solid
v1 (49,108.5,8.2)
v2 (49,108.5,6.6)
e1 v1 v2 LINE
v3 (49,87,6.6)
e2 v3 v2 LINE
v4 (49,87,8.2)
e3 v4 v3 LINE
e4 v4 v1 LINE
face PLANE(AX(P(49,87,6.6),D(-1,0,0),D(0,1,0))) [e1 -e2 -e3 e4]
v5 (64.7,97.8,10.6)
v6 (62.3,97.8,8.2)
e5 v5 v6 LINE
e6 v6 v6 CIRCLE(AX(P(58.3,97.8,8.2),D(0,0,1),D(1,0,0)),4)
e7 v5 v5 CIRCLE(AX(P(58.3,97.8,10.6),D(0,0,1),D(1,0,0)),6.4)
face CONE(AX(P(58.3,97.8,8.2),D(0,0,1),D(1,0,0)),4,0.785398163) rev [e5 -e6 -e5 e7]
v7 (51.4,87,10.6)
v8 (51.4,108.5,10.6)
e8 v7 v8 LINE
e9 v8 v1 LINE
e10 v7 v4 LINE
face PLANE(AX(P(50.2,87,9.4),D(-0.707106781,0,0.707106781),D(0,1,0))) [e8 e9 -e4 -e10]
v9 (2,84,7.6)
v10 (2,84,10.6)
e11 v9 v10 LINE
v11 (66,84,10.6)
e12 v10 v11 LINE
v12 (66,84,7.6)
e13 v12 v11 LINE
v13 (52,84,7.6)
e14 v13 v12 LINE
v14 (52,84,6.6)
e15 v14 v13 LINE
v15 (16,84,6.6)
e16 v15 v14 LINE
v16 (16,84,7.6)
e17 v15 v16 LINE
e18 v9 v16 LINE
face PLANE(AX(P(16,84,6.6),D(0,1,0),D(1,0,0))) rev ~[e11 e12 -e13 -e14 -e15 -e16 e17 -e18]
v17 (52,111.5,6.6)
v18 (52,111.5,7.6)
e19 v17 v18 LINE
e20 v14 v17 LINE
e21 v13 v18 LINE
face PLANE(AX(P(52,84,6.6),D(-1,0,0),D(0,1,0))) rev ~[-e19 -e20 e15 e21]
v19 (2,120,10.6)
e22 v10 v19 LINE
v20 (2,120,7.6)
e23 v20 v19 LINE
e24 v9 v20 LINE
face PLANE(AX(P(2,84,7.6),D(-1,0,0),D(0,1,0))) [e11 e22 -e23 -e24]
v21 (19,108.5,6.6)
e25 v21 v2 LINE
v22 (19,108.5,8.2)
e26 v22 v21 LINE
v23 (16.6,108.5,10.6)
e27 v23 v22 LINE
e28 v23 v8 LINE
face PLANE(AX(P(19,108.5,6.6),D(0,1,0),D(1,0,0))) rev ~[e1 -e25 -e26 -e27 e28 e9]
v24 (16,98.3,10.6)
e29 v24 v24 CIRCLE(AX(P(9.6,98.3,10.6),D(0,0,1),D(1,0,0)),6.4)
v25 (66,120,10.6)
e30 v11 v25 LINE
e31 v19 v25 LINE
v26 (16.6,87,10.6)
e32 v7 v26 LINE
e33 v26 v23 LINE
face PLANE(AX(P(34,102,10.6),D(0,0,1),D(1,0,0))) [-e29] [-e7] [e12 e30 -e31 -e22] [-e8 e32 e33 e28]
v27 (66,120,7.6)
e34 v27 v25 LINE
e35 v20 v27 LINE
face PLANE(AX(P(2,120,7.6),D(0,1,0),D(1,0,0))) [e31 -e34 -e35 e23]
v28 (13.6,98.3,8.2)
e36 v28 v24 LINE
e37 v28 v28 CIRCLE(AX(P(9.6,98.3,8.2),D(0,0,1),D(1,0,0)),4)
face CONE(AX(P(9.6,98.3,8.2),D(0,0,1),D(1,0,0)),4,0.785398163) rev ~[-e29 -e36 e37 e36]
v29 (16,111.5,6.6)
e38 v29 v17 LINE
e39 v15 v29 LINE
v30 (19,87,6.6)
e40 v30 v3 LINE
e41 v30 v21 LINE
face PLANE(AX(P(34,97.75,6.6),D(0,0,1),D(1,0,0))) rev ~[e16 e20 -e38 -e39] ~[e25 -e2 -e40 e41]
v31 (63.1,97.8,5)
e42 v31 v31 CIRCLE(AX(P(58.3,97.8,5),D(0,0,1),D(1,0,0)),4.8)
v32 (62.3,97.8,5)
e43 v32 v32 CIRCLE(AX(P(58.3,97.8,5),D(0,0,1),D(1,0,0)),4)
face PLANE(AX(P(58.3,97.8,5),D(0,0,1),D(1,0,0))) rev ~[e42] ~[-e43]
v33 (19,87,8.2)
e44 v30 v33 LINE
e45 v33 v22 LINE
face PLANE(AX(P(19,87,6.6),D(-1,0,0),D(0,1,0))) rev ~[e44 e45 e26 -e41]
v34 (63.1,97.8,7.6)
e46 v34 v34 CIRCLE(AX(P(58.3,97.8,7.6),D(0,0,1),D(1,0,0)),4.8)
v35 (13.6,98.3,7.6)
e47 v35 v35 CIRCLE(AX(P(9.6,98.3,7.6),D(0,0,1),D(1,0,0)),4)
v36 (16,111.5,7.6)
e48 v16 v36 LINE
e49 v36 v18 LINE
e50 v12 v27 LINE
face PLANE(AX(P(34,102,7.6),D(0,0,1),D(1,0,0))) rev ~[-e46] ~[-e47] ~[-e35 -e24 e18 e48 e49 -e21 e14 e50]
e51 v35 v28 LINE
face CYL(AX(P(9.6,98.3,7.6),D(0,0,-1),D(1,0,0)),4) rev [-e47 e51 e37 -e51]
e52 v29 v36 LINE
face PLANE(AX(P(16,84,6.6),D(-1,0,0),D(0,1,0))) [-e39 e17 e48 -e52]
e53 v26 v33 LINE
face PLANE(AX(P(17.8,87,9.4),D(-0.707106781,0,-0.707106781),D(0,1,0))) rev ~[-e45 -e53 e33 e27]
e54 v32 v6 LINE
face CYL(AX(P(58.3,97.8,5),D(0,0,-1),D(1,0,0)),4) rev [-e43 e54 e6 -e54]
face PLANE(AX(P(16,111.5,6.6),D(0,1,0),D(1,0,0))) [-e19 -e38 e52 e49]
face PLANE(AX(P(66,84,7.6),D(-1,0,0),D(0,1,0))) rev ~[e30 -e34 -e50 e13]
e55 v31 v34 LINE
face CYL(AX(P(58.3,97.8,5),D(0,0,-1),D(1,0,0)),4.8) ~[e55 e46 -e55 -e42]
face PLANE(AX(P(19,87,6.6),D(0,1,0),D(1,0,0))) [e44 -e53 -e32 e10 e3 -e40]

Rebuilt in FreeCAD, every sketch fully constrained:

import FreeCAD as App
import Part
import Sketcher
from FreeCAD import Vector
Q = App.Units.Quantity


def edges_at(feature, points):
    """Names of the edges that pass closest to the given points."""
    edges = feature.Shape.Edges
    near = lambda p: min(range(len(edges)), key=lambda i: edges[i].distToShape(Part.Vertex(*p))[0])
    return sorted({f"Edge{near(p) + 1}" for p in points})


def add_polygon(sketch, points):
    """Adds a closed chain of lines whose ends are joined by coincident constraints."""
    first, n = sketch.GeometryCount, len(points)
    for a, b in zip(points, points[1:] + points[:1]):
        sketch.addGeometry(Part.LineSegment(App.Vector(*a, 0), App.Vector(*b, 0)), False)
    for i in range(n):
        sketch.addConstraint(Sketcher.Constraint("Coincident", first + i, 2, first + (i + 1) % n, 1))

doc = App.newDocument("Part")
body = doc.addObject("PartDesign::Body", "Body")

sketch1 = doc.addObject("Sketcher::SketchObject", "Sketch")
body.addObject(sketch1)
sketch1.AttachmentSupport = (doc.XY_Plane, [""])
sketch1.MapMode = "FlatFace"
add_polygon(sketch1, [(16, 111.5), (16, 84), (52, 84), (52, 111.5)])
add_polygon(sketch1, [(49, 87), (19, 87), (19, 108.5), (49, 108.5)])
sketch1.addConstraint(Sketcher.Constraint("Vertical", 0))
sketch1.addConstraint(Sketcher.Constraint("Horizontal", 1))
sketch1.addConstraint(Sketcher.Constraint("Vertical", 2))
sketch1.addConstraint(Sketcher.Constraint("Horizontal", 3))
sketch1.addConstraint(Sketcher.Constraint("Horizontal", 4))
sketch1.addConstraint(Sketcher.Constraint("Vertical", 5))
sketch1.addConstraint(Sketcher.Constraint("Horizontal", 6))
sketch1.addConstraint(Sketcher.Constraint("Vertical", 7))
sketch1.addConstraint(Sketcher.Constraint("DistanceX", 1, 1, 1, 2, Q("36 mm")))
sketch1.addConstraint(Sketcher.Constraint("DistanceX", 4, 2, 4, 1, Q("30 mm")))
sketch1.addConstraint(Sketcher.Constraint("DistanceY", 0, 2, 0, 1, Q("27.5 mm")))
sketch1.addConstraint(Sketcher.Constraint("DistanceY", 5, 1, 5, 2, Q("21.5 mm")))
sketch1.addConstraint(Sketcher.Constraint("DistanceX", -1, 1, 0, 2, Q("16 mm")))
sketch1.addConstraint(Sketcher.Constraint("DistanceY", -1, 1, 0, 2, Q("84 mm")))
sketch1.addConstraint(Sketcher.Constraint("DistanceX", -1, 1, 4, 2, Q("19 mm")))
sketch1.addConstraint(Sketcher.Constraint("DistanceY", -1, 1, 4, 2, Q("87 mm")))
pad1 = doc.addObject("PartDesign::Pad", "Pad")
body.addObject(pad1)
pad1.Profile = sketch1
pad1.Length = 1
body2 = doc.addObject("PartDesign::Body", "Body001")
doc.recompute()

body.Placement = App.Placement(Vector(0, 0, 6.6), App.Rotation(Vector(0, 0, 1), 0))
boolean = doc.addObject("PartDesign::Boolean", "Boolean")
body2.addObject(boolean)
boolean.Type = "Fuse"
boolean.addObjects([body])
body3 = doc.addObject("PartDesign::Body", "Body002")

sketch2 = doc.addObject("Sketcher::SketchObject", "Sketch001")
body3.addObject(sketch2)
sketch2.AttachmentSupport = (doc.getObject("XY_Plane002"), [""])
sketch2.MapMode = "FlatFace"
sketch2.addGeometry(Part.Circle(Vector(58.3, 97.8, 0), Vector(0, 0, 1), 4.8), False)
sketch2.addGeometry(Part.Circle(Vector(58.3, 97.8, 0), Vector(0, 0, 1), 4), False)
sketch2.addConstraint(Sketcher.Constraint("Coincident", 1, 3, 0, 3))
sketch2.addConstraint(Sketcher.Constraint("Diameter", 1, Q("8 mm")))
sketch2.addConstraint(Sketcher.Constraint("Diameter", 0, Q("9.6 mm")))
sketch2.addConstraint(Sketcher.Constraint("DistanceX", -1, 1, 0, 3, Q("58.3 mm")))
sketch2.addConstraint(Sketcher.Constraint("DistanceY", -1, 1, 0, 3, Q("97.8 mm")))
pad2 = doc.addObject("PartDesign::Pad", "Pad001")
body3.addObject(pad2)
pad2.Profile = sketch2
pad2.Length = 2.6
body4 = doc.addObject("PartDesign::Body", "Body003")
doc.recompute()

body3.Placement = App.Placement(Vector(0, 0, 5), App.Rotation(Vector(0, 0, 1), 0))
boolean2 = doc.addObject("PartDesign::Boolean", "Boolean001")
body4.addObject(boolean2)
boolean2.Type = "Fuse"
boolean2.addObjects([body3])
body5 = doc.addObject("PartDesign::Body", "Body004")

sketch3 = doc.addObject("Sketcher::SketchObject", "Sketch002")
body5.addObject(sketch3)
sketch3.AttachmentSupport = (doc.getObject("XY_Plane004"), [""])
sketch3.MapMode = "FlatFace"
add_polygon(sketch3, [(2, 120), (2, 84), (66, 84), (66, 120)])
sketch3.addGeometry(Part.Circle(Vector(9.6, 98.3, 0), Vector(0, 0, 1), 4), False)
add_polygon(sketch3, [(49, 87), (19, 87), (19, 108.5), (49, 108.5)])
sketch3.addGeometry(Part.Circle(Vector(58.3, 97.8, 0), Vector(0, 0, 1), 4), False)
sketch3.addConstraint(Sketcher.Constraint("Vertical", 0))
sketch3.addConstraint(Sketcher.Constraint("Horizontal", 1))
sketch3.addConstraint(Sketcher.Constraint("Vertical", 2))
sketch3.addConstraint(Sketcher.Constraint("Horizontal", 3))
sketch3.addConstraint(Sketcher.Constraint("Horizontal", 5))
sketch3.addConstraint(Sketcher.Constraint("Vertical", 6))
sketch3.addConstraint(Sketcher.Constraint("Horizontal", 7))
sketch3.addConstraint(Sketcher.Constraint("Vertical", 8))
sketch3.addConstraint(Sketcher.Constraint("Equal", 4, 9))
sketch3.addConstraint(Sketcher.Constraint("Diameter", 4, Q("8 mm")))
sketch3.addConstraint(Sketcher.Constraint("DistanceX", 1, 1, 1, 2, Q("64 mm")))
sketch3.addConstraint(Sketcher.Constraint("DistanceX", 5, 2, 5, 1, Q("30 mm")))
sketch3.addConstraint(Sketcher.Constraint("DistanceY", 0, 2, 0, 1, Q("36 mm")))
sketch3.addConstraint(Sketcher.Constraint("DistanceY", 6, 1, 6, 2, Q("21.5 mm")))
sketch3.addConstraint(Sketcher.Constraint("DistanceX", -1, 1, 0, 2, Q("2 mm")))
sketch3.addConstraint(Sketcher.Constraint("DistanceY", -1, 1, 0, 2, Q("84 mm")))
sketch3.addConstraint(Sketcher.Constraint("DistanceX", -1, 1, 5, 2, Q("19 mm")))
sketch3.addConstraint(Sketcher.Constraint("DistanceY", -1, 1, 5, 2, Q("87 mm")))
sketch3.addConstraint(Sketcher.Constraint("DistanceX", -1, 1, 4, 3, Q("9.6 mm")))
sketch3.addConstraint(Sketcher.Constraint("DistanceY", -1, 1, 4, 3, Q("98.3 mm")))
sketch3.addConstraint(Sketcher.Constraint("DistanceX", -1, 1, 9, 3, Q("58.3 mm")))
sketch3.addConstraint(Sketcher.Constraint("DistanceY", -1, 1, 9, 3, Q("97.8 mm")))
pad3 = doc.addObject("PartDesign::Pad", "Pad002")
body5.addObject(pad3)
pad3.Profile = sketch3
pad3.Length = 3
body6 = doc.addObject("PartDesign::Body", "Body005")
doc.recompute()

body5.Placement = App.Placement(Vector(0, 0, 7.6), App.Rotation(Vector(0, 0, 1), 0))
boolean3 = doc.addObject("PartDesign::Boolean", "Boolean002")
body6.addObject(boolean3)
boolean3.Type = "Fuse"
boolean3.addObjects([body5])
doc.recompute()

boolean4 = doc.addObject("PartDesign::Boolean", "Boolean003")
body6.addObject(boolean4)
boolean4.Type = "Fuse"
boolean4.addObjects([body2])
doc.recompute()

boolean5 = doc.addObject("PartDesign::Boolean", "Boolean004")
body6.addObject(boolean5)
boolean5.Type = "Fuse"
boolean5.addObjects([body4])
doc.recompute()

chamfer = doc.addObject("PartDesign::Chamfer", "Chamfer")
body6.addObject(chamfer)
chamfer.Base = (boolean5, edges_at(boolean5, [
    (54.3, 97.8, 10.6),
    (5.6, 98.3, 10.6),
    (49, 97.75, 10.6),
    (19, 97.75, 10.6),
]))
chamfer.Size = 2.4

doc.recompute()
